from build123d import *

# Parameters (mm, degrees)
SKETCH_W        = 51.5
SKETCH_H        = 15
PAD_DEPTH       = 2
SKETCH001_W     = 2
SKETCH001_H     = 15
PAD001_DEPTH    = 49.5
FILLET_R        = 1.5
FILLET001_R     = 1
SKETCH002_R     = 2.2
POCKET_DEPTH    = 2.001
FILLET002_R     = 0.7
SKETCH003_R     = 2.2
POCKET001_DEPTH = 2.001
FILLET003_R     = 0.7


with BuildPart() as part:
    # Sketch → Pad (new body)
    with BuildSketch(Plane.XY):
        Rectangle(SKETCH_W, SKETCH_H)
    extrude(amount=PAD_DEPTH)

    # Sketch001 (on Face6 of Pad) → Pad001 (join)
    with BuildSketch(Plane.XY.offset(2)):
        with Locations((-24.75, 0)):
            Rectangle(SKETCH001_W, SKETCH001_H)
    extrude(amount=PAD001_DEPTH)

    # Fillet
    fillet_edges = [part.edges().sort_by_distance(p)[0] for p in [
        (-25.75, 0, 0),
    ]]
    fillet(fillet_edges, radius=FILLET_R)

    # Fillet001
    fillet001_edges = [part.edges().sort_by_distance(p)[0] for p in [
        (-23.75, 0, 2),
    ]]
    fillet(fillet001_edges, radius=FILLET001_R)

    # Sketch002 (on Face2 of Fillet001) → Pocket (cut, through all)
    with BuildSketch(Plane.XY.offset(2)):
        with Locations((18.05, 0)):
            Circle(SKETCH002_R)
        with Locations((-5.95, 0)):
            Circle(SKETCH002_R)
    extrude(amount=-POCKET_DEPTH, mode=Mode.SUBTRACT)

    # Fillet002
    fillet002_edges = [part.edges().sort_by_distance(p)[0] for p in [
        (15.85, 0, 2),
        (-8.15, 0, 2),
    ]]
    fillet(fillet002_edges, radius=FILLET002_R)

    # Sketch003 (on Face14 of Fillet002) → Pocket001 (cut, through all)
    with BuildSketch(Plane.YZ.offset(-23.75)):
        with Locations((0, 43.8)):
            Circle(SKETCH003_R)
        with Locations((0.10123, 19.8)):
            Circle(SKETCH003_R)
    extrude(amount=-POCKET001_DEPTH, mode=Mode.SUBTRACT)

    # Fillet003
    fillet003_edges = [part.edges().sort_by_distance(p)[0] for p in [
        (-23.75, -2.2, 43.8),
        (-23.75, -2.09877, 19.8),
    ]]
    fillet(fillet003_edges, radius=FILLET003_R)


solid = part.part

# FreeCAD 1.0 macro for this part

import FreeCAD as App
import Part
import Sketcher

V = App.Vector


def edges_at(feature, points):
    """Names of the edges that pass closest to the given points."""
    edges = feature.Shape.Edges
    near = lambda p: min(range(len(edges)), key=lambda i: edges[i].distToShape(Part.Vertex(*p))[0])
    return sorted({f"Edge{near(p) + 1}" for p in points})


def add_polygon(sketch, points):
    """Adds a closed chain of lines whose ends are joined by coincident constraints."""
    first, n = sketch.GeometryCount, len(points)
    for a, b in zip(points, points[1:] + points[:1]):
        sketch.addGeometry(Part.LineSegment(App.Vector(*a, 0), App.Vector(*b, 0)), False)
    for i in range(n):
        sketch.addConstraint(Sketcher.Constraint("Coincident", first + i, 2, first + (i + 1) % n, 1))

doc = App.newDocument("Part")
body = doc.addObject("PartDesign::Body", "Body")

# Sketch on XY plane
sketch1 = body.newObject("Sketcher::SketchObject", "Sketch")
sketch1.AttachmentSupport = (doc.getObject("XY_Plane"), [""])
sketch1.MapMode = "FlatFace"
add_polygon(sketch1, [(-26, 8), (-26, -8), (26, -8), (26, 8)])  # lines 0-3
sketch1.addConstraint([
    Sketcher.Constraint("Vertical", 0),
    Sketcher.Constraint("Horizontal", 1),
    Sketcher.Constraint("Vertical", 2),
    Sketcher.Constraint("Horizontal", 3),
    Sketcher.Constraint("Symmetric", 0, 2, 2, 2, -1, 1),
    Sketcher.Constraint("DistanceY", 0, 2, 0, 1, 15.0),
    Sketcher.Constraint("DistanceX", 1, 1, 1, 2, 51.5),
])
pad1 = body.newObject("PartDesign::Pad", "Pad")
pad1.Profile = sketch1
pad1.Length = 2

# Sketch on XY plane
sketch2 = body.newObject("Sketcher::SketchObject", "Sketch001")
sketch2.AttachmentSupport = (doc.getObject("XY_Plane"), [""])
sketch2.MapMode = "FlatFace"
sketch2.AttachmentOffset = App.Placement(V(0, 0, 2), App.Rotation())
add_polygon(sketch2, [(-25.8, 7.5), (-25.8, -7.5), (-23.8, -7.5), (-23.8, 7.5)])  # lines 0-3
sketch2.addConstraint([
    Sketcher.Constraint("Vertical", 0),
    Sketcher.Constraint("Horizontal", 1),
    Sketcher.Constraint("Vertical", 2),
    Sketcher.Constraint("Horizontal", 3),
    Sketcher.Constraint("DistanceX", 1, 1, 1, 2, 2.0),
    Sketcher.Constraint("DistanceY", 0, 2, 0, 1, 15.0),
    Sketcher.Constraint("DistanceY", 0, 2, -1, 1, 7.5),
    Sketcher.Constraint("DistanceX", 0, 2, -1, 1, 25.75),
])
pad2 = body.newObject("PartDesign::Pad", "Pad001")
pad2.Profile = sketch2
pad2.Length = 49.5
doc.recompute()

fillet = body.newObject("PartDesign::Fillet", "Fillet")
fillet.Base = (pad2, edges_at(pad2, [(-25.75, 0, 0)]))
fillet.Radius = 1.5
doc.recompute()

fillet2 = body.newObject("PartDesign::Fillet", "Fillet001")
fillet2.Base = (fillet, edges_at(fillet, [(-23.75, 0, 2)]))
fillet2.Radius = 1

# Sketch on XY plane
sketch3 = body.newObject("Sketcher::SketchObject", "Sketch002")
sketch3.AttachmentSupport = (doc.getObject("XY_Plane"), [""])
sketch3.MapMode = "FlatFace"
sketch3.AttachmentOffset = App.Placement(V(0, 0, 2), App.Rotation())
sketch3.addGeometry([
    Part.Circle(V(18.1, 0, 0), V(0, 0, 1), 2.2),
    Part.Circle(V(-6, 0, 0), V(0, 0, 1), 2.2),
], False)
sketch3.addConstraint([
    Sketcher.Constraint("Equal", 0, 1),
    Sketcher.Constraint("PointOnObject", 0, 3, -1),
    Sketcher.Constraint("PointOnObject", 1, 3, -1),
    Sketcher.Constraint("Diameter", 0, 4.4),
    Sketcher.Constraint("DistanceX", 1, 3, 0, 3, 24.0),
    Sketcher.Constraint("DistanceX", -1, 1, 0, 3, 18.05),
])
pocket1 = body.newObject("PartDesign::Pocket", "Pocket")
pocket1.Profile = sketch3
pocket1.Type = "ThroughAll"
doc.recompute()

fillet3 = body.newObject("PartDesign::Fillet", "Fillet002")
fillet3.Base = (pocket1, edges_at(pocket1, [(15.85, 0, 2), (-8.15, 0, 2)]))
fillet3.Radius = 0.7

# Sketch on YZ plane
sketch4 = body.newObject("Sketcher::SketchObject", "Sketch003")
sketch4.AttachmentSupport = (doc.getObject("YZ_Plane"), [""])
sketch4.MapMode = "FlatFace"
sketch4.AttachmentOffset = App.Placement(V(0, 0, -23.75), App.Rotation())
sketch4.addGeometry([
    Part.Circle(V(0, 43.8, 0), V(0, 0, 1), 2.2),
    Part.Circle(V(0.1, 19.8, 0), V(0, 0, 1), 2.2),
], False)
sketch4.addConstraint([
    Sketcher.Constraint("Equal", 0, 1),
    Sketcher.Constraint("PointOnObject", 0, 3, -2),
    Sketcher.Constraint("Diameter", 0, 4.4),
    Sketcher.Constraint("DistanceY", 1, 3, 0, 3, 24.0),
    Sketcher.Constraint("DistanceY", -1, 1, 0, 3, 43.8),
    Sketcher.Constraint("DistanceX", -1, 1, 1, 3, 0.10123),
])
pocket2 = body.newObject("PartDesign::Pocket", "Pocket001")
pocket2.Profile = sketch4
pocket2.Type = "ThroughAll"
doc.recompute()

fillet4 = body.newObject("PartDesign::Fillet", "Fillet003")
fillet4.Base = (pocket2, edges_at(pocket2, [(-23.75, -2.2, 43.8), (-23.75, -2.099, 19.8)]))
fillet4.Radius = 0.7

doc.recompute()
